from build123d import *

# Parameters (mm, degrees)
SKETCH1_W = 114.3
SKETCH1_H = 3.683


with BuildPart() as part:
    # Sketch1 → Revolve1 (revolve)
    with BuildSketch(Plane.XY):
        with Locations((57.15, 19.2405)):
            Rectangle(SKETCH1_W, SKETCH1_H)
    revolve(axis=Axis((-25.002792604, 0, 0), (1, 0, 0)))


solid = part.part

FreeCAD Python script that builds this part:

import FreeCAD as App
import Part
import Sketcher

V = App.Vector
Q = App.Units.Quantity


def add_polygon(sketch, points):
    """Adds a closed chain of lines whose ends are joined by coincident constraints."""
    first, n = sketch.GeometryCount, len(points)
    for a, b in zip(points, points[1:] + points[:1]):
        sketch.addGeometry(Part.LineSegment(App.Vector(*a, 0), App.Vector(*b, 0)), False)
    for i in range(n):
        sketch.addConstraint(Sketcher.Constraint("Coincident", first + i, 2, first + (i + 1) % n, 1))

doc = App.newDocument("Part")
body = doc.addObject("PartDesign::Body", "Body")

# Sketch on XY plane
sketch1 = body.newObject("Sketcher::SketchObject", "Sketch")
sketch1.AttachmentSupport = (doc.getObject("XY_Plane"), [""])
sketch1.MapMode = "FlatFace"
add_polygon(sketch1, [(0, 21.082), (0, 17.399), (114.3, 17.399), (114.3, 21.082)])  # lines 0-3
sketch1.addConstraint(Sketcher.Constraint("Vertical", 0))
sketch1.addConstraint(Sketcher.Constraint("Horizontal", 1))
sketch1.addConstraint(Sketcher.Constraint("Vertical", 2))
sketch1.addConstraint(Sketcher.Constraint("Horizontal", 3))
sketch1.addConstraint(Sketcher.Constraint("PointOnObject", 0, 2, -2))
sketch1.addConstraint(Sketcher.Constraint("DistanceX", 1, 1, 1, 2, Q("4.5 in")))
sketch1.addConstraint(Sketcher.Constraint("DistanceY", 0, 2, 0, 1, Q("0.145 in")))
sketch1.addConstraint(Sketcher.Constraint("DistanceY", -1, 1, 2, 2, Q("0.83 in")))
revolution = body.newObject("PartDesign::Revolution", "Revolution")
revolution.Profile = sketch1
revolution.ReferenceAxis = (sketch1, ["H_Axis"])
revolution.Angle = 360

doc.recompute()
